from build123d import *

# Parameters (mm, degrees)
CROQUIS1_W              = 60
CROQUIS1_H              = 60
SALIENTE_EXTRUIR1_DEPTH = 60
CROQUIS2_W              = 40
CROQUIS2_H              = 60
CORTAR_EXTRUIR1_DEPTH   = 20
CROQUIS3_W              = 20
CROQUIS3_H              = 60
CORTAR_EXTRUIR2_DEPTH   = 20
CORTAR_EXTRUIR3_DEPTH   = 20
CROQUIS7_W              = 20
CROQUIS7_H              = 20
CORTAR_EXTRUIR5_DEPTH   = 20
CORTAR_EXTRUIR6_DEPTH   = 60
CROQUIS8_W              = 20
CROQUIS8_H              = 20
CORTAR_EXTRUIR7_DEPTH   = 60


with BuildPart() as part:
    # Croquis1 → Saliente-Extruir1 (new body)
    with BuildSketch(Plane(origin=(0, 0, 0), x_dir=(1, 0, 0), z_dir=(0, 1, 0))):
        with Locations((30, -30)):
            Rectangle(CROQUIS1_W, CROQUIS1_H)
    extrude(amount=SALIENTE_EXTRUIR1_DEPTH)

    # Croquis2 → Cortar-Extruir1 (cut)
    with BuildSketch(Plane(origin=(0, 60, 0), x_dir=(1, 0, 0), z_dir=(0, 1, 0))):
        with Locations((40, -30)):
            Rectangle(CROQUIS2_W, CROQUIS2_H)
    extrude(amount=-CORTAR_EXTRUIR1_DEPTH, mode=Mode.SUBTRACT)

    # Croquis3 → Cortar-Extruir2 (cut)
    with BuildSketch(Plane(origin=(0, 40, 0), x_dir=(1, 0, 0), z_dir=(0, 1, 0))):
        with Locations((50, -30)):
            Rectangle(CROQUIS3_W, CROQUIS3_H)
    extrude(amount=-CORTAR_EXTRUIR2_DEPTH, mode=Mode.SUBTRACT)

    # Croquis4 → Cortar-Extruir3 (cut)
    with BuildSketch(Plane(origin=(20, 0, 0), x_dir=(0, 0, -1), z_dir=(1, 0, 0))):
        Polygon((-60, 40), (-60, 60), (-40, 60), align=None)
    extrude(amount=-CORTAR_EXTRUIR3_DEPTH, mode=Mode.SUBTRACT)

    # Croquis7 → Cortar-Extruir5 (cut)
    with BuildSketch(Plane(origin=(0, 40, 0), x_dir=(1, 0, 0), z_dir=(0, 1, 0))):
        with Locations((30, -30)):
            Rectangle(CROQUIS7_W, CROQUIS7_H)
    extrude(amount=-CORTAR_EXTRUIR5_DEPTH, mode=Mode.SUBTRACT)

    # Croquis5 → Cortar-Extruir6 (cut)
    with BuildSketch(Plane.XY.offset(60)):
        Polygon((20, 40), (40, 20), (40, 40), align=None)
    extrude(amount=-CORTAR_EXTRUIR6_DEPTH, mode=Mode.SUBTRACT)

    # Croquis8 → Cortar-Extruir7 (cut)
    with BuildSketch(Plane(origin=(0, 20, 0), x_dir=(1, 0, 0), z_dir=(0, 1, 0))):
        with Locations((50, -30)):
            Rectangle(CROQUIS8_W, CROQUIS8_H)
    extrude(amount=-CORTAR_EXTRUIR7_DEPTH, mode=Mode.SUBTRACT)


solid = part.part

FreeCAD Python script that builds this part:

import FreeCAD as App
import Part
import Sketcher

doc = App.newDocument("Part")
params = doc.addObject("Spreadsheet::Sheet", "Params")
for row, (alias, value) in enumerate([
    ("sketch1_width", "60 mm"),
    ("pad1_length", "60 mm"),
    ("sketch2_width", "40 mm"),
    ("sketch2_height", "60 mm"),
    ("pocket1_length", "20 mm"),
    ("sketch3_width", "20 mm"),
    ("sketch3_height", "60 mm"),
    ("pocket2_length", "20 mm"),
    ("sketch4_width", "20 mm"),
    ("pocket3_length", "20 mm"),
    ("sketch5_width", "20 mm"),
    ("pocket4_length", "20 mm"),
    ("sketch6_width", "20 mm"),
    ("pocket5_length", "60 mm"),
    ("sketch7_width", "20 mm"),
    ("pocket6_length", "60 mm"),
], start=1):
    params.set(f"A{row}", alias)
    params.set(f"B{row}", "=" + value)
    params.setAlias(f"B{row}", alias)

body = doc.addObject("PartDesign::Body", "Body")

# Sketch on XZ plane
sketch1 = doc.addObject("Sketcher::SketchObject", "Sketch")
body.addObject(sketch1)
sketch1.AttachmentSupport = (doc.XZ_Plane, [""])
sketch1.MapMode = "FlatFace"
sketch1.addGeometry(Part.LineSegment(App.Vector(0, 0, 0), App.Vector(0, 60, 0)), False)
sketch1.addGeometry(Part.LineSegment(App.Vector(0, 60, 0), App.Vector(60, 60, 0)), False)
sketch1.addGeometry(Part.LineSegment(App.Vector(60, 60, 0), App.Vector(60, 0, 0)), False)
sketch1.addGeometry(Part.LineSegment(App.Vector(60, 0, 0), App.Vector(0, 0, 0)), False)
sketch1.addConstraint(Sketcher.Constraint("Coincident", 0, 2, 1, 1))
sketch1.addConstraint(Sketcher.Constraint("Coincident", 1, 2, 2, 1))
sketch1.addConstraint(Sketcher.Constraint("Coincident", 2, 2, 3, 1))
sketch1.addConstraint(Sketcher.Constraint("Coincident", 3, 2, 0, 1))
sketch1.addConstraint(Sketcher.Constraint("Vertical", 0))
sketch1.addConstraint(Sketcher.Constraint("Horizontal", 1))
sketch1.addConstraint(Sketcher.Constraint("Vertical", 2))
sketch1.addConstraint(Sketcher.Constraint("Horizontal", 3))
sketch1.addConstraint(Sketcher.Constraint("Coincident", 3, 2, -1, 1))
sketch1.addConstraint(Sketcher.Constraint("Equal", 3, 0))
sketch1.addConstraint(Sketcher.Constraint("DistanceX", 1, 1, 1, 2, 60.0))
sketch1.setExpression("Constraints[10]", "Params.sketch1_width")
pad1 = doc.addObject("PartDesign::Pad", "Pad")
body.addObject(pad1)
pad1.Profile = sketch1
pad1.setExpression("Length", "Params.pad1_length")
pad1.Reversed = True

# Sketch on XZ plane
sketch2 = doc.addObject("Sketcher::SketchObject", "Sketch001")
body.addObject(sketch2)
sketch2.AttachmentSupport = (doc.XZ_Plane, [""])
sketch2.MapMode = "FlatFace"
sketch2.AttachmentOffset = App.Placement(App.Vector(0, 0, -60), App.Rotation())
sketch2.addGeometry(Part.LineSegment(App.Vector(20, 0, 0), App.Vector(20, 60, 0)), False)
sketch2.addGeometry(Part.LineSegment(App.Vector(20, 60, 0), App.Vector(60, 60, 0)), False)
sketch2.addGeometry(Part.LineSegment(App.Vector(60, 60, 0), App.Vector(60, 0, 0)), False)
sketch2.addGeometry(Part.LineSegment(App.Vector(60, 0, 0), App.Vector(20, 0, 0)), False)
sketch2.addConstraint(Sketcher.Constraint("Coincident", 0, 2, 1, 1))
sketch2.addConstraint(Sketcher.Constraint("Coincident", 1, 2, 2, 1))
sketch2.addConstraint(Sketcher.Constraint("Coincident", 2, 2, 3, 1))
sketch2.addConstraint(Sketcher.Constraint("Coincident", 3, 2, 0, 1))
sketch2.addConstraint(Sketcher.Constraint("Vertical", 0))
sketch2.addConstraint(Sketcher.Constraint("Horizontal", 1))
sketch2.addConstraint(Sketcher.Constraint("Vertical", 2))
sketch2.addConstraint(Sketcher.Constraint("Horizontal", 3))
sketch2.addConstraint(Sketcher.Constraint("PointOnObject", 2, 2, -1))
sketch2.addConstraint(Sketcher.Constraint("DistanceX", 1, 1, 1, 2, 40.0))
sketch2.addConstraint(Sketcher.Constraint("DistanceY", 0, 1, 0, 2, 60.0))
sketch2.addConstraint(Sketcher.Constraint("DistanceX", -1, 1, 0, 2, 20.0))
sketch2.setExpression("Constraints[9]", "Params.sketch2_width")
sketch2.setExpression("Constraints[10]", "Params.sketch2_height")
pocket1 = doc.addObject("PartDesign::Pocket", "Pocket")
body.addObject(pocket1)
pocket1.Profile = sketch2
pocket1.setExpression("Length", "Params.pocket1_length")
pocket1.Reversed = True

# Sketch on XZ plane
sketch3 = doc.addObject("Sketcher::SketchObject", "Sketch002")
body.addObject(sketch3)
sketch3.AttachmentSupport = (doc.XZ_Plane, [""])
sketch3.MapMode = "FlatFace"
sketch3.AttachmentOffset = App.Placement(App.Vector(0, 0, -40), App.Rotation())
sketch3.addGeometry(Part.LineSegment(App.Vector(40, 0, 0), App.Vector(40, 60, 0)), False)
sketch3.addGeometry(Part.LineSegment(App.Vector(40, 60, 0), App.Vector(60, 60, 0)), False)
sketch3.addGeometry(Part.LineSegment(App.Vector(60, 60, 0), App.Vector(60, 0, 0)), False)
sketch3.addGeometry(Part.LineSegment(App.Vector(60, 0, 0), App.Vector(40, 0, 0)), False)
sketch3.addConstraint(Sketcher.Constraint("Coincident", 0, 2, 1, 1))
sketch3.addConstraint(Sketcher.Constraint("Coincident", 1, 2, 2, 1))
sketch3.addConstraint(Sketcher.Constraint("Coincident", 2, 2, 3, 1))
sketch3.addConstraint(Sketcher.Constraint("Coincident", 3, 2, 0, 1))
sketch3.addConstraint(Sketcher.Constraint("Vertical", 0))
sketch3.addConstraint(Sketcher.Constraint("Horizontal", 1))
sketch3.addConstraint(Sketcher.Constraint("Vertical", 2))
sketch3.addConstraint(Sketcher.Constraint("Horizontal", 3))
sketch3.addConstraint(Sketcher.Constraint("PointOnObject", 2, 2, -1))
sketch3.addConstraint(Sketcher.Constraint("DistanceX", 1, 1, 1, 2, 20.0))
sketch3.addConstraint(Sketcher.Constraint("DistanceY", 0, 1, 0, 2, 60.0))
sketch3.addConstraint(Sketcher.Constraint("DistanceX", -1, 1, 0, 2, 40.0))
sketch3.setExpression("Constraints[9]", "Params.sketch3_width")
sketch3.setExpression("Constraints[10]", "Params.sketch3_height")
pocket2 = doc.addObject("PartDesign::Pocket", "Pocket001")
body.addObject(pocket2)
pocket2.Profile = sketch3
pocket2.setExpression("Length", "Params.pocket2_length")
pocket2.Reversed = True

# Sketch on YZ plane
sketch4 = doc.addObject("Sketcher::SketchObject", "Sketch003")
body.addObject(sketch4)
sketch4.AttachmentSupport = (doc.YZ_Plane, [""])
sketch4.MapMode = "FlatFace"
sketch4.AttachmentOffset = App.Placement(App.Vector(0, 0, 20), App.Rotation())
sketch4.addGeometry(Part.LineSegment(App.Vector(60, 60, 0), App.Vector(40, 60, 0)), False)
sketch4.addGeometry(Part.LineSegment(App.Vector(40, 60, 0), App.Vector(60, 40, 0)), False)
sketch4.addGeometry(Part.LineSegment(App.Vector(60, 40, 0), App.Vector(60, 60, 0)), False)
sketch4.addConstraint(Sketcher.Constraint("Coincident", 0, 2, 1, 1))
sketch4.addConstraint(Sketcher.Constraint("Coincident", 1, 2, 2, 1))
sketch4.addConstraint(Sketcher.Constraint("Coincident", 2, 2, 0, 1))
sketch4.addConstraint(Sketcher.Constraint("Horizontal", 0))
sketch4.addConstraint(Sketcher.Constraint("Vertical", 2))
sketch4.addConstraint(Sketcher.Constraint("Equal", 0, 2))
sketch4.addConstraint(Sketcher.Constraint("DistanceX", 0, 2, 0, 1, 20.0))
sketch4.addConstraint(Sketcher.Constraint("DistanceX", -1, 1, 0, 2, 40.0))
sketch4.addConstraint(Sketcher.Constraint("DistanceY", -1, 1, 0, 2, 60.0))
sketch4.setExpression("Constraints[6]", "Params.sketch4_width")
pocket3 = doc.addObject("PartDesign::Pocket", "Pocket002")
body.addObject(pocket3)
pocket3.Profile = sketch4
pocket3.setExpression("Length", "Params.pocket3_length")

# Sketch on XZ plane
sketch5 = doc.addObject("Sketcher::SketchObject", "Sketch004")
body.addObject(sketch5)
sketch5.AttachmentSupport = (doc.XZ_Plane, [""])
sketch5.MapMode = "FlatFace"
sketch5.AttachmentOffset = App.Placement(App.Vector(0, 0, -40), App.Rotation())
sketch5.addGeometry(Part.LineSegment(App.Vector(20, 20, 0), App.Vector(20, 40, 0)), False)
sketch5.addGeometry(Part.LineSegment(App.Vector(20, 40, 0), App.Vector(40, 40, 0)), False)
sketch5.addGeometry(Part.LineSegment(App.Vector(40, 40, 0), App.Vector(40, 20, 0)), False)
sketch5.addGeometry(Part.LineSegment(App.Vector(40, 20, 0), App.Vector(20, 20, 0)), False)
sketch5.addConstraint(Sketcher.Constraint("Coincident", 0, 2, 1, 1))
sketch5.addConstraint(Sketcher.Constraint("Coincident", 1, 2, 2, 1))
sketch5.addConstraint(Sketcher.Constraint("Coincident", 2, 2, 3, 1))
sketch5.addConstraint(Sketcher.Constraint("Coincident", 3, 2, 0, 1))
sketch5.addConstraint(Sketcher.Constraint("Vertical", 0))
sketch5.addConstraint(Sketcher.Constraint("Horizontal", 1))
sketch5.addConstraint(Sketcher.Constraint("Vertical", 2))
sketch5.addConstraint(Sketcher.Constraint("Horizontal", 3))
sketch5.addConstraint(Sketcher.Constraint("Equal", 3, 0))
sketch5.addConstraint(Sketcher.Constraint("DistanceX", 1, 1, 1, 2, 20.0))
sketch5.addConstraint(Sketcher.Constraint("DistanceX", -1, 1, 0, 2, 20.0))
sketch5.addConstraint(Sketcher.Constraint("DistanceY", -1, 1, 0, 2, 40.0))
sketch5.setExpression("Constraints[9]", "Params.sketch5_width")
pocket4 = doc.addObject("PartDesign::Pocket", "Pocket003")
body.addObject(pocket4)
pocket4.Profile = sketch5
pocket4.setExpression("Length", "Params.pocket4_length")
pocket4.Reversed = True

# Sketch on XY plane
sketch6 = doc.addObject("Sketcher::SketchObject", "Sketch005")
body.addObject(sketch6)
sketch6.AttachmentSupport = (doc.XY_Plane, [""])
sketch6.MapMode = "FlatFace"
sketch6.AttachmentOffset = App.Placement(App.Vector(0, 0, 60), App.Rotation())
sketch6.addGeometry(Part.LineSegment(App.Vector(20, 40, 0), App.Vector(40, 20, 0)), False)
sketch6.addGeometry(Part.LineSegment(App.Vector(40, 20, 0), App.Vector(40, 40, 0)), False)
sketch6.addGeometry(Part.LineSegment(App.Vector(40, 40, 0), App.Vector(20, 40, 0)), False)
sketch6.addConstraint(Sketcher.Constraint("Coincident", 0, 2, 1, 1))
sketch6.addConstraint(Sketcher.Constraint("Coincident", 1, 2, 2, 1))
sketch6.addConstraint(Sketcher.Constraint("Coincident", 2, 2, 0, 1))
sketch6.addConstraint(Sketcher.Constraint("Vertical", 1))
sketch6.addConstraint(Sketcher.Constraint("Horizontal", 2))
sketch6.addConstraint(Sketcher.Constraint("Equal", 2, 1))
sketch6.addConstraint(Sketcher.Constraint("DistanceX", 2, 2, 2, 1, 20.0))
sketch6.addConstraint(Sketcher.Constraint("DistanceX", -1, 1, 0, 2, 40.0))
sketch6.addConstraint(Sketcher.Constraint("DistanceY", -1, 1, 0, 2, 20.0))
sketch6.setExpression("Constraints[6]", "Params.sketch6_width")
pocket5 = doc.addObject("PartDesign::Pocket", "Pocket004")
body.addObject(pocket5)
pocket5.Profile = sketch6
pocket5.setExpression("Length", "Params.pocket5_length")

# Sketch on XZ plane
sketch7 = doc.addObject("Sketcher::SketchObject", "Sketch006")
body.addObject(sketch7)
sketch7.AttachmentSupport = (doc.XZ_Plane, [""])
sketch7.MapMode = "FlatFace"
sketch7.AttachmentOffset = App.Placement(App.Vector(0, 0, -20), App.Rotation())
sketch7.addGeometry(Part.LineSegment(App.Vector(40, 20, 0), App.Vector(40, 40, 0)), False)
sketch7.addGeometry(Part.LineSegment(App.Vector(40, 40, 0), App.Vector(60, 40, 0)), False)
sketch7.addGeometry(Part.LineSegment(App.Vector(60, 40, 0), App.Vector(60, 20, 0)), False)
sketch7.addGeometry(Part.LineSegment(App.Vector(60, 20, 0), App.Vector(40, 20, 0)), False)
sketch7.addConstraint(Sketcher.Constraint("Coincident", 0, 2, 1, 1))
sketch7.addConstraint(Sketcher.Constraint("Coincident", 1, 2, 2, 1))
sketch7.addConstraint(Sketcher.Constraint("Coincident", 2, 2, 3, 1))
sketch7.addConstraint(Sketcher.Constraint("Coincident", 3, 2, 0, 1))
sketch7.addConstraint(Sketcher.Constraint("Vertical", 0))
sketch7.addConstraint(Sketcher.Constraint("Horizontal", 1))
sketch7.addConstraint(Sketcher.Constraint("Vertical", 2))
sketch7.addConstraint(Sketcher.Constraint("Horizontal", 3))
sketch7.addConstraint(Sketcher.Constraint("Equal", 3, 0))
sketch7.addConstraint(Sketcher.Constraint("DistanceX", 1, 1, 1, 2, 20.0))
sketch7.addConstraint(Sketcher.Constraint("DistanceX", -1, 1, 0, 2, 40.0))
sketch7.addConstraint(Sketcher.Constraint("DistanceY", -1, 1, 0, 2, 40.0))
sketch7.setExpression("Constraints[9]", "Params.sketch7_width")
pocket6 = doc.addObject("PartDesign::Pocket", "Pocket005")
body.addObject(pocket6)
pocket6.Profile = sketch7
pocket6.setExpression("Length", "Params.pocket6_length")
pocket6.Reversed = True

doc.recompute()
